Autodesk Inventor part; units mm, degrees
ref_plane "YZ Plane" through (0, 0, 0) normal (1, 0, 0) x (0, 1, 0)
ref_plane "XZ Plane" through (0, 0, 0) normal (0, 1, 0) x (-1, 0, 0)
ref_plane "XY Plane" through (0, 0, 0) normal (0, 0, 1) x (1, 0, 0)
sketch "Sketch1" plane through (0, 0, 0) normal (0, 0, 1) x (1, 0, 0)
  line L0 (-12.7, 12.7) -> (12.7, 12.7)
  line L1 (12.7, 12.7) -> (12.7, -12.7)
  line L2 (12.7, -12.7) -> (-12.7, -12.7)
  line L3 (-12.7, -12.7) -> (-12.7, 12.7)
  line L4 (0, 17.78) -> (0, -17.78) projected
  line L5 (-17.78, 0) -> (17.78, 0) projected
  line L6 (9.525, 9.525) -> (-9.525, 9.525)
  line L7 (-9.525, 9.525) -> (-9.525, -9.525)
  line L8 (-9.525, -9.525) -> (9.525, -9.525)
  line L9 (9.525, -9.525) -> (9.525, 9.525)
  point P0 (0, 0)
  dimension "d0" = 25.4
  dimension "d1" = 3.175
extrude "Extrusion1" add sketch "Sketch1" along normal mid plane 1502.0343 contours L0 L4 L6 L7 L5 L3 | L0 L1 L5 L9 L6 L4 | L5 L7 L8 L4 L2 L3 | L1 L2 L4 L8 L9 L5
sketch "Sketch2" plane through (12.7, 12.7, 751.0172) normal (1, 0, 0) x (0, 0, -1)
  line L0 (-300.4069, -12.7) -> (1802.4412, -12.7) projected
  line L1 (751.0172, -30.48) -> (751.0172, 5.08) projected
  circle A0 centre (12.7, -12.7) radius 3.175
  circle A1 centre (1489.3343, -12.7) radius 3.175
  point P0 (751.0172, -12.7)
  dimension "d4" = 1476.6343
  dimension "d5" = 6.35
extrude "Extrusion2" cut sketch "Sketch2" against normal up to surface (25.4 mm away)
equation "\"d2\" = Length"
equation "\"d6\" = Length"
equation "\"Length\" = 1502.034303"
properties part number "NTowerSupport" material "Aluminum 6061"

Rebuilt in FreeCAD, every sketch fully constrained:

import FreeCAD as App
import Part
import Sketcher

V = App.Vector
Q = App.Units.Quantity

doc = App.newDocument("Part")
body = doc.addObject("PartDesign::Body", "Body")

# Sketch on XY plane
sketch1 = doc.addObject("Sketcher::SketchObject", "Sketch")
body.addObject(sketch1)
sketch1.AttachmentSupport = (doc.XY_Plane, [""])
sketch1.MapMode = "FlatFace"
sketch1.addGeometry(Part.LineSegment(V(-13, 13, 0), V(-13, -13, 0)), False)
sketch1.addGeometry(Part.LineSegment(V(-13, -13, 0), V(13, -13, 0)), False)
sketch1.addGeometry(Part.LineSegment(V(13, -13, 0), V(13, 13, 0)), False)
sketch1.addGeometry(Part.LineSegment(V(13, 13, 0), V(-13, 13, 0)), False)
sketch1.addGeometry(Part.LineSegment(V(-10, 10, 0), V(10, 10, 0)), False)
sketch1.addGeometry(Part.LineSegment(V(10, 10, 0), V(10, -10, 0)), False)
sketch1.addGeometry(Part.LineSegment(V(10, -10, 0), V(-10, -10, 0)), False)
sketch1.addGeometry(Part.LineSegment(V(-10, -10, 0), V(-10, 10, 0)), False)
sketch1.addConstraint(Sketcher.Constraint("Coincident", 0, 2, 1, 1))
sketch1.addConstraint(Sketcher.Constraint("Coincident", 1, 2, 2, 1))
sketch1.addConstraint(Sketcher.Constraint("Coincident", 2, 2, 3, 1))
sketch1.addConstraint(Sketcher.Constraint("Coincident", 3, 2, 0, 1))
sketch1.addConstraint(Sketcher.Constraint("Coincident", 4, 2, 5, 1))
sketch1.addConstraint(Sketcher.Constraint("Coincident", 5, 2, 6, 1))
sketch1.addConstraint(Sketcher.Constraint("Coincident", 6, 2, 7, 1))
sketch1.addConstraint(Sketcher.Constraint("Coincident", 7, 2, 4, 1))
sketch1.addConstraint(Sketcher.Constraint("Vertical", 0))
sketch1.addConstraint(Sketcher.Constraint("Horizontal", 1))
sketch1.addConstraint(Sketcher.Constraint("Vertical", 2))
sketch1.addConstraint(Sketcher.Constraint("Horizontal", 3))
sketch1.addConstraint(Sketcher.Constraint("Horizontal", 4))
sketch1.addConstraint(Sketcher.Constraint("Vertical", 5))
sketch1.addConstraint(Sketcher.Constraint("Horizontal", 6))
sketch1.addConstraint(Sketcher.Constraint("Vertical", 7))
sketch1.addConstraint(Sketcher.Constraint("Symmetric", 0, 2, 2, 2, -1, 1))
sketch1.addConstraint(Sketcher.Constraint("Symmetric", 4, 2, 6, 2, -1, 1))
sketch1.addConstraint(Sketcher.Constraint("Equal", 3, 0))
sketch1.addConstraint(Sketcher.Constraint("Equal", 6, 5))
sketch1.addConstraint(Sketcher.Constraint("DistanceX", 1, 1, 1, 2, Q("1 in")))
sketch1.addConstraint(Sketcher.Constraint("DistanceX", 4, 2, 2, 2, Q("0.125 in")))
pad1 = doc.addObject("PartDesign::Pad", "Pad")
body.addObject(pad1)
pad1.Profile = sketch1
pad1.Length = Q("59.1352087 in")
pad1.Midplane = True

# Sketch on YZ plane
sketch2 = doc.addObject("Sketcher::SketchObject", "Sketch001")
body.addObject(sketch2)
sketch2.AttachmentSupport = (doc.YZ_Plane, [""])
sketch2.MapMode = "FlatFace"
sketch2.AttachmentOffset = App.Placement(V(0, 0, 0.5 * 25.4), App.Rotation())
sketch2.addGeometry(Part.Circle(V(0, 738.3, 0), V(0, 0, 1), 3.2), False)
sketch2.addGeometry(Part.Circle(V(0, -738.3, 0), V(0, 0, 1), 3.2), False)
sketch2.addConstraint(Sketcher.Constraint("Equal", 0, 1))
sketch2.addConstraint(Sketcher.Constraint("Symmetric", 0, 3, 1, 3, -1, 1))
sketch2.addConstraint(Sketcher.Constraint("PointOnObject", 0, 3, -2))
sketch2.addConstraint(Sketcher.Constraint("Diameter", 0, Q("0.25 in")))
sketch2.addConstraint(Sketcher.Constraint("DistanceY", 1, 3, 0, 3, Q("58.1352 in")))
pocket1 = doc.addObject("PartDesign::Pocket", "Pocket")
body.addObject(pocket1)
pocket1.Profile = sketch2
pocket1.Length = Q("1 in")

doc.recompute()
